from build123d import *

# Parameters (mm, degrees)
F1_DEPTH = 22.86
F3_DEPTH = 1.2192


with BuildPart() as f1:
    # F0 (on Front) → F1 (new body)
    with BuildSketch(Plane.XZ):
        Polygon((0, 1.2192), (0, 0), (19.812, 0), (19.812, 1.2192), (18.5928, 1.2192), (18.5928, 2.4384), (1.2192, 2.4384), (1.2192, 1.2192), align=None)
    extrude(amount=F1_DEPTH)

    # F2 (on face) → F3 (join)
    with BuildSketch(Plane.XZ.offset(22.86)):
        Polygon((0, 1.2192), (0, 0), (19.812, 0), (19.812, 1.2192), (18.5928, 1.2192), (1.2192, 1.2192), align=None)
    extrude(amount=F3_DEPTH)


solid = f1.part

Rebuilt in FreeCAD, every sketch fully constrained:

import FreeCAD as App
import Part
import Sketcher
from FreeCAD import Vector
Q = App.Units.Quantity

doc = App.newDocument("Part")
body = doc.addObject("PartDesign::Body", "Body")

# Sketch on XZ plane
sketch1 = body.newObject("Sketcher::SketchObject", "Sketch")
sketch1.AttachmentSupport = (doc.getObject("XZ_Plane"), [""])
sketch1.MapMode = "FlatFace"
sketch1.addGeometry([
    Part.LineSegment(Vector(0, 1.2, 0), Vector(0, 0, 0)),  # 0
    Part.LineSegment(Vector(0, 0, 0), Vector(19.8, 0, 0)),  # 1
    Part.LineSegment(Vector(19.8, 0, 0), Vector(19.8, 1.2, 0)),  # 2
    Part.LineSegment(Vector(19.8, 1.2, 0), Vector(18.6, 1.2, 0)),  # 3
    Part.LineSegment(Vector(18.6, 1.2, 0), Vector(18.6, 2.4, 0)),  # 4
    Part.LineSegment(Vector(18.6, 2.4, 0), Vector(1.2, 2.4, 0)),  # 5
    Part.LineSegment(Vector(1.2, 2.4, 0), Vector(1.2, 1.2, 0)),  # 6
    Part.LineSegment(Vector(1.2, 1.2, 0), Vector(0, 1.2, 0)),  # 7
], False)
sketch1.addConstraint([
    Sketcher.Constraint("Coincident", 0, 2, 1, 1),
    Sketcher.Constraint("Coincident", 1, 2, 2, 1),
    Sketcher.Constraint("Coincident", 2, 2, 3, 1),
    Sketcher.Constraint("Coincident", 3, 2, 4, 1),
    Sketcher.Constraint("Coincident", 4, 2, 5, 1),
    Sketcher.Constraint("Coincident", 5, 2, 6, 1),
    Sketcher.Constraint("Coincident", 6, 2, 7, 1),
    Sketcher.Constraint("Coincident", 7, 2, 0, 1),
    Sketcher.Constraint("Vertical", 0),
    Sketcher.Constraint("Horizontal", 1),
    Sketcher.Constraint("Vertical", 2),
    Sketcher.Constraint("Horizontal", 3),
    Sketcher.Constraint("Vertical", 4),
    Sketcher.Constraint("Horizontal", 5),
    Sketcher.Constraint("Vertical", 6),
    Sketcher.Constraint("Horizontal", 7),
    Sketcher.Constraint("Coincident", 0, 2, -1, 1),
    Sketcher.Constraint("Horizontal", 3, 2, 6, 2),
    Sketcher.Constraint("Equal", 3, 7),
    Sketcher.Constraint("Equal", 7, 0),
    Sketcher.Constraint("Equal", 2, 4),
    Sketcher.Constraint("DistanceX", 1, 1, 1, 2, Q("0.78 in")),
    Sketcher.Constraint("DistanceX", 3, 2, 3, 1, Q("0.048 in")),
])
pad1 = body.newObject("PartDesign::Pad", "Pad")
pad1.Profile = sketch1
pad1.Length = Q("0.9 in")

# Sketch on XZ plane
sketch2 = body.newObject("Sketcher::SketchObject", "Sketch001")
sketch2.AttachmentSupport = (doc.getObject("XZ_Plane"), [""])
sketch2.MapMode = "FlatFace"
sketch2.AttachmentOffset = App.Placement(Vector(0, 0, 0.9 * 25.4), App.Rotation())
sketch2.addGeometry([
    Part.LineSegment(Vector(0, 1.2, 0), Vector(0, 0, 0)),
    Part.LineSegment(Vector(0, 0, 0), Vector(19.8, 0, 0)),
    Part.LineSegment(Vector(19.8, 0, 0), Vector(19.8, 1.2, 0)),
    Part.LineSegment(Vector(19.8, 1.2, 0), Vector(0, 1.2, 0)),
], False)
sketch2.addConstraint([
    Sketcher.Constraint("Coincident", 0, 2, 1, 1),
    Sketcher.Constraint("Coincident", 1, 2, 2, 1),
    Sketcher.Constraint("Coincident", 2, 2, 3, 1),
    Sketcher.Constraint("Coincident", 3, 2, 0, 1),
    Sketcher.Constraint("Vertical", 0),
    Sketcher.Constraint("Horizontal", 1),
    Sketcher.Constraint("Vertical", 2),
    Sketcher.Constraint("Horizontal", 3),
    Sketcher.Constraint("Coincident", 0, 2, -1, 1),
    Sketcher.Constraint("DistanceX", 1, 1, 1, 2, Q("0.78 in")),
    Sketcher.Constraint("DistanceY", 0, 2, 0, 1, Q("0.048 in")),
])
pad2 = body.newObject("PartDesign::Pad", "Pad001")
pad2.Profile = sketch2
pad2.Length = Q("0.048 in")

doc.recompute()
